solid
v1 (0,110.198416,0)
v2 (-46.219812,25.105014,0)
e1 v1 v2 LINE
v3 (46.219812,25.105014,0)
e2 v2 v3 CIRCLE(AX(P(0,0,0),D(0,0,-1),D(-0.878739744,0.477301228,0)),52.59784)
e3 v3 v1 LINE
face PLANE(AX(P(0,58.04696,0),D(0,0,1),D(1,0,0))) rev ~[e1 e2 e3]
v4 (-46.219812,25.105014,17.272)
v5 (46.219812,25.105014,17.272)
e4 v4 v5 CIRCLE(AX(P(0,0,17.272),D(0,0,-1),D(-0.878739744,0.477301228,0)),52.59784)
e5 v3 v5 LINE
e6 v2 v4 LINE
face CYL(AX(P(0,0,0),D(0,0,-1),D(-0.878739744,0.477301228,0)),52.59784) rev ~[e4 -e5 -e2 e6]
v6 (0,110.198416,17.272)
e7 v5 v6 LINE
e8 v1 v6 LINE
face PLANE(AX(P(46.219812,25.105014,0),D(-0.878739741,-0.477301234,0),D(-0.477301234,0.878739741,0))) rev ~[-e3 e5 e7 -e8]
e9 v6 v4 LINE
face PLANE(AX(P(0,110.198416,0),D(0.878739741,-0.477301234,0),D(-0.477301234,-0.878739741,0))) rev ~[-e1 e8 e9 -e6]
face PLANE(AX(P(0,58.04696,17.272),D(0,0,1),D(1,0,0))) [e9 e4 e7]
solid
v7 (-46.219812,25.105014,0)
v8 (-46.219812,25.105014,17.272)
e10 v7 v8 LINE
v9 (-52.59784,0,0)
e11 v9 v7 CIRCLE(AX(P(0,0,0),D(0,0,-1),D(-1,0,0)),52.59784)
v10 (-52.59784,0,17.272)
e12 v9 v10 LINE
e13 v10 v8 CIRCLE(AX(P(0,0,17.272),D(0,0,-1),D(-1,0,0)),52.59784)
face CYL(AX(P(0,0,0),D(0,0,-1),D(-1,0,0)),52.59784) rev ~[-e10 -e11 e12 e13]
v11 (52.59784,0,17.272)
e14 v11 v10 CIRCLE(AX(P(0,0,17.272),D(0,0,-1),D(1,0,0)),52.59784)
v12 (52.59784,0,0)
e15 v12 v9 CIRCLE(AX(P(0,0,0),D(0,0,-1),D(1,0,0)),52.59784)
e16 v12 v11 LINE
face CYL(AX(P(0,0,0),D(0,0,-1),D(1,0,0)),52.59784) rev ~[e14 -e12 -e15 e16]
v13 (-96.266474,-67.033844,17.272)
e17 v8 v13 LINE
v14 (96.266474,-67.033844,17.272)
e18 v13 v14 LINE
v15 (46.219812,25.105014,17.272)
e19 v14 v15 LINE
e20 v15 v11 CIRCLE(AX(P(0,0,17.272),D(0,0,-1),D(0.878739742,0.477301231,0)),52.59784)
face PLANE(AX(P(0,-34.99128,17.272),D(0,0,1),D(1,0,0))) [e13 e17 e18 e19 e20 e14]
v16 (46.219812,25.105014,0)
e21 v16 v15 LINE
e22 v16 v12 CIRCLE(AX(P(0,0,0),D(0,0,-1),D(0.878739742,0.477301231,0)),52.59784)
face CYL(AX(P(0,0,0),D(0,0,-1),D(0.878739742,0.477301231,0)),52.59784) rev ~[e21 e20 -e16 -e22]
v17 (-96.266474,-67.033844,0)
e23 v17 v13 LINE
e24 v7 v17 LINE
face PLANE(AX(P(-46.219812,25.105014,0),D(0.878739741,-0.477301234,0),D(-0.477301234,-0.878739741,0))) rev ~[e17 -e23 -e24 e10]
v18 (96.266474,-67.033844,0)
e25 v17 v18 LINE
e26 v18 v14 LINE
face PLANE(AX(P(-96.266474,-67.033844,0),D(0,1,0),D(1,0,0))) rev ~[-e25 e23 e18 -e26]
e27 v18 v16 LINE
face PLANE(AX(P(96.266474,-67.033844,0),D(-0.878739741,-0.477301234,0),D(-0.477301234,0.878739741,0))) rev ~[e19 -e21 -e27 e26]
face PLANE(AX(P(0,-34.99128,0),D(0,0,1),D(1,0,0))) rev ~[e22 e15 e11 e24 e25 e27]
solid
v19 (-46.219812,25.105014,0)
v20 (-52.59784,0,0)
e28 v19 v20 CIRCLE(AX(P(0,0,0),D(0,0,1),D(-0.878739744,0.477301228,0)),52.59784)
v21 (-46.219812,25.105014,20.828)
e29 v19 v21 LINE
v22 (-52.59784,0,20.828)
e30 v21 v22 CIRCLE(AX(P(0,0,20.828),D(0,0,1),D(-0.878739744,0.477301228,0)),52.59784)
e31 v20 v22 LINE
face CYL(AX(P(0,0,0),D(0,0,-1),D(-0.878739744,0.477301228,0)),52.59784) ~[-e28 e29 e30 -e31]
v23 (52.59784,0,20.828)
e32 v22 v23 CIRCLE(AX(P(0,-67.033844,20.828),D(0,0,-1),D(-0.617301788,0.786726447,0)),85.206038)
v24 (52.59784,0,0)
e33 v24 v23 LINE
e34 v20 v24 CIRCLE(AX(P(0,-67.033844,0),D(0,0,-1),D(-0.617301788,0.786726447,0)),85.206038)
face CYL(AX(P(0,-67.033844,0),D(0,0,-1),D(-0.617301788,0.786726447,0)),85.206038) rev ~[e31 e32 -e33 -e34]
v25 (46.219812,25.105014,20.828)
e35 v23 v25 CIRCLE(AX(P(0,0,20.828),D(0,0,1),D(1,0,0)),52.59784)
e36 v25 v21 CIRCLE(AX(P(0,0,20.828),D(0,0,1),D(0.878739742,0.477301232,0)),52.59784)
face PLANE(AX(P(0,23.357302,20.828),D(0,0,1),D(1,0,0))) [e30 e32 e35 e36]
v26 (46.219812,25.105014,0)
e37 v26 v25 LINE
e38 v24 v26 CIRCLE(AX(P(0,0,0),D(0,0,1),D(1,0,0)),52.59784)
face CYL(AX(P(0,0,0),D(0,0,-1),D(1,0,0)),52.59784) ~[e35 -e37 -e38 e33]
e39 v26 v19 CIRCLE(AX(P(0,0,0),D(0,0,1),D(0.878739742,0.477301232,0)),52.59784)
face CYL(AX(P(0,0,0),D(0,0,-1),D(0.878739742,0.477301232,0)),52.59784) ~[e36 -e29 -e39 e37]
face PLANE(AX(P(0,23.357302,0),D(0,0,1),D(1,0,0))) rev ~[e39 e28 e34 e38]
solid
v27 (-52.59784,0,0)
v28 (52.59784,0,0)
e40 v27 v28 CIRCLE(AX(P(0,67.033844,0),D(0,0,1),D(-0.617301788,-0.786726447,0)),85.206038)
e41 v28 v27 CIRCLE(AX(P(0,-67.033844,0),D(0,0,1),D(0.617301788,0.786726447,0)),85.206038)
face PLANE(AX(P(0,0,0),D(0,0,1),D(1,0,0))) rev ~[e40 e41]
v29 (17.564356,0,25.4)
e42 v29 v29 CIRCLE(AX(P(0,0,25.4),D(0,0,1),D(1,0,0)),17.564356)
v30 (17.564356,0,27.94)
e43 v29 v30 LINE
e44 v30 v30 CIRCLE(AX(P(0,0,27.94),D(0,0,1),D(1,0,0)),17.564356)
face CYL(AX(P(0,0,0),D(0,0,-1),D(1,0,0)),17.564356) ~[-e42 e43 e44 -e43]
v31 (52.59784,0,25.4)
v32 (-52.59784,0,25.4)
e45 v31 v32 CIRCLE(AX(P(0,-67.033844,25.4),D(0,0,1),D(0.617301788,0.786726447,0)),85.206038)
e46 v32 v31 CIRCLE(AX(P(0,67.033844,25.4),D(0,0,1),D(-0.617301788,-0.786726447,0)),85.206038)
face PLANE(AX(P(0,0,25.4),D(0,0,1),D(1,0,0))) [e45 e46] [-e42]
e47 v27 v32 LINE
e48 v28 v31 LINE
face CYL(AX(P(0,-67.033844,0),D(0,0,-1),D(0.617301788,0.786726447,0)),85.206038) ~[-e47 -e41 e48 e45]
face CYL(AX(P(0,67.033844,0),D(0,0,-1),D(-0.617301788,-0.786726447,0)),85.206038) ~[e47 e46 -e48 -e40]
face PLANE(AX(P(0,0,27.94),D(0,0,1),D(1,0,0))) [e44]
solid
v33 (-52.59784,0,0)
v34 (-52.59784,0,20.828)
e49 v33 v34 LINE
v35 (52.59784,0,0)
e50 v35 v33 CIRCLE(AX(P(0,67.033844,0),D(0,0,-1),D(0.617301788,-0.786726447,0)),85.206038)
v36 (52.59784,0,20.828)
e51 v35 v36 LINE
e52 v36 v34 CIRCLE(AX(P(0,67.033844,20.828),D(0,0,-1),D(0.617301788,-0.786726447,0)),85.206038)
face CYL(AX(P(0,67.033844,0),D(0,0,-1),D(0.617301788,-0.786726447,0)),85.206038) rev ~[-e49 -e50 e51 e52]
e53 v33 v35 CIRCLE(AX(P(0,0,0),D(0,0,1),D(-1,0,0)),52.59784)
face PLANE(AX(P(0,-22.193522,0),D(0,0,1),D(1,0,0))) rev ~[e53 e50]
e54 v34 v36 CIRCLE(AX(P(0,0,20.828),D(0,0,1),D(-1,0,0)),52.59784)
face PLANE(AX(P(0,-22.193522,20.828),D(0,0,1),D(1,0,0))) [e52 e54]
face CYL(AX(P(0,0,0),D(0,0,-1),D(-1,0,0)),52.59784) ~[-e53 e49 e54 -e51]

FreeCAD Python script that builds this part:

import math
import FreeCAD as App
import Part
import Sketcher
from FreeCAD import Vector
Q = App.Units.Quantity

doc = App.newDocument("Part")
body = doc.addObject("PartDesign::Body", "Body")

sketch1 = doc.addObject("Sketcher::SketchObject", "Sketch")
body.addObject(sketch1)
sketch1.AttachmentSupport = (doc.XY_Plane, [""])
sketch1.MapMode = "FlatFace"
sketch1.addGeometry([
    Part.ArcOfCircle(Part.Circle(Vector(0, 0, 0), Vector(0, 0, 1), 52.59784), math.radians(180), math.radians(360)),
    Part.ArcOfCircle(Part.Circle(Vector(0, 0, 0), Vector(0, 0, 1), 52.59784), math.radians(151.490711), math.radians(180)),
    Part.LineSegment(Vector(-46.219812, 25.105014, 0), Vector(-96.266474, -67.033844, 0)),
    Part.LineSegment(Vector(-96.266474, -67.033844, 0), Vector(96.266474, -67.033844, 0)),
    Part.LineSegment(Vector(96.266474, -67.033844, 0), Vector(46.219812, 25.105014, 0)),
    Part.ArcOfCircle(Part.Circle(Vector(0, 0, 0), Vector(0, 0, 1), 52.59784), math.radians(0), math.radians(28.509289)),
], False)
sketch1.addConstraint([
    Sketcher.Constraint("Tangent", 0, 1, 1, 2),
    Sketcher.Constraint("Tangent", 1, 1, 2, 1),
    Sketcher.Constraint("Coincident", 2, 2, 3, 1),
    Sketcher.Constraint("Coincident", 3, 2, 4, 1),
    Sketcher.Constraint("Tangent", 4, 2, 5, 2),
    Sketcher.Constraint("Tangent", 5, 1, 0, 2),
    Sketcher.Constraint("Horizontal", 3),
    Sketcher.Constraint("Coincident", 0, 3, -1, 1),
    Sketcher.Constraint("Equal", 0, 1),
    Sketcher.Constraint("Equal", 1, 5),
    Sketcher.Constraint("PointOnObject", 0, 1, -1),
    Sketcher.Constraint("PointOnObject", 5, 1, -1),
    Sketcher.Constraint("Horizontal", 1, 1, 4, 2),
    Sketcher.Constraint("Radius", 0, Q("52.59784 mm")),
    Sketcher.Constraint("Distance", 2, Q("104.853409 mm")),
    Sketcher.Constraint("DistanceX", 3, 1, 3, 2, Q("192.532948 mm")),
])
pad1 = doc.addObject("PartDesign::Pad", "Pad")
body.addObject(pad1)
pad1.Profile = sketch1
pad1.Length = Q("0.68 in")
body2 = doc.addObject("PartDesign::Body", "Body001")

sketch2 = doc.addObject("Sketcher::SketchObject", "Sketch001")
body2.addObject(sketch2)
sketch2.AttachmentSupport = (doc.getObject("XY_Plane001"), [""])
sketch2.MapMode = "FlatFace"
sketch2.addGeometry([
    Part.LineSegment(Vector(0, 110.198416, 0), Vector(-46.219812, 25.105014, 0)),
    Part.ArcOfCircle(Part.Circle(Vector(0, 0, 0), Vector(0, 0, 1), 52.59784), math.radians(28.509289), math.radians(151.490711)),
    Part.LineSegment(Vector(46.219812, 25.105014, 0), Vector(0, 110.198416, 0)),
], False)
sketch2.addConstraint([
    Sketcher.Constraint("Tangent", 0, 2, 1, 2),
    Sketcher.Constraint("Tangent", 1, 1, 2, 1),
    Sketcher.Constraint("Coincident", 2, 2, 0, 1),
    Sketcher.Constraint("Coincident", 1, 3, -1, 1),
    Sketcher.Constraint("PointOnObject", 2, 2, -2),
    Sketcher.Constraint("Radius", 1, Q("52.59784 mm")),
    Sketcher.Constraint("Distance", 0, Q("96.835728 mm")),
])
pad2 = doc.addObject("PartDesign::Pad", "Pad001")
body2.addObject(pad2)
pad2.Profile = sketch2
pad2.Length = Q("0.68 in")
body3 = doc.addObject("PartDesign::Body", "Body002")

sketch3 = doc.addObject("Sketcher::SketchObject", "Sketch002")
body3.addObject(sketch3)
sketch3.AttachmentSupport = (doc.getObject("XY_Plane002"), [""])
sketch3.MapMode = "FlatFace"
sketch3.addGeometry([
    Part.ArcOfCircle(Part.Circle(Vector(0, 0, 0), Vector(0, 0, 1), 52.59784), math.radians(151.490711), math.radians(180)),
    Part.ArcOfCircle(Part.Circle(Vector(0, -67.033844, 0), Vector(0, 0, 1), 85.206038), math.radians(51.880637), math.radians(128.119363)),
    Part.ArcOfCircle(Part.Circle(Vector(0, 0, 0), Vector(0, 0, 1), 52.59784), math.radians(0), math.radians(28.509289)),
    Part.ArcOfCircle(Part.Circle(Vector(0, 0, 0), Vector(0, 0, 1), 52.59784), math.radians(28.509289), math.radians(151.490711)),
], False)
sketch3.addConstraint([
    Sketcher.Constraint("Coincident", 0, 2, 1, 2),
    Sketcher.Constraint("Coincident", 1, 1, 2, 1),
    Sketcher.Constraint("Tangent", 2, 2, 3, 1),
    Sketcher.Constraint("Tangent", 3, 2, 0, 1),
    Sketcher.Constraint("Coincident", 0, 3, -1, 1),
    Sketcher.Constraint("Coincident", 2, 3, -1, 1),
    Sketcher.Constraint("PointOnObject", 1, 3, -2),
    Sketcher.Constraint("PointOnObject", 0, 2, -1),
    Sketcher.Constraint("Horizontal", 2, 2, 3, 2),
    Sketcher.Constraint("Radius", 0, Q("52.59784 mm")),
    Sketcher.Constraint("Radius", 1, Q("85.206038 mm")),
    Sketcher.Constraint("DistanceX", -1, 1, 2, 2, Q("46.219812 mm")),
])
pad3 = doc.addObject("PartDesign::Pad", "Pad002")
body3.addObject(pad3)
pad3.Profile = sketch3
pad3.Length = Q("0.82 in")
body4 = doc.addObject("PartDesign::Body", "Body003")

sketch4 = doc.addObject("Sketcher::SketchObject", "Sketch003")
body4.addObject(sketch4)
sketch4.AttachmentSupport = (doc.getObject("XY_Plane003"), [""])
sketch4.MapMode = "FlatFace"
sketch4.addGeometry([
    Part.ArcOfCircle(Part.Circle(Vector(0, 67.033844, 0), Vector(0, 0, 1), 85.206038), math.radians(-128.119363), math.radians(-51.880637)),
    Part.ArcOfCircle(Part.Circle(Vector(0, 0, 0), Vector(0, 0, 1), 52.59784), math.radians(180), math.radians(360)),
], False)
sketch4.addConstraint([
    Sketcher.Constraint("Coincident", 0, 1, 1, 1),
    Sketcher.Constraint("Coincident", 1, 2, 0, 2),
    Sketcher.Constraint("Coincident", 1, 3, -1, 1),
    Sketcher.Constraint("PointOnObject", 0, 3, -2),
    Sketcher.Constraint("PointOnObject", 0, 1, -1),
    Sketcher.Constraint("Radius", 0, Q("85.206038 mm")),
    Sketcher.Constraint("Radius", 1, Q("52.59784 mm")),
])
pad4 = doc.addObject("PartDesign::Pad", "Pad003")
body4.addObject(pad4)
pad4.Profile = sketch4
pad4.Length = Q("0.82 in")
body5 = doc.addObject("PartDesign::Body", "Body004")

sketch5 = doc.addObject("Sketcher::SketchObject", "Sketch004")
body5.addObject(sketch5)
sketch5.AttachmentSupport = (doc.getObject("XY_Plane004"), [""])
sketch5.MapMode = "FlatFace"
sketch5.addGeometry([
    Part.ArcOfCircle(Part.Circle(Vector(0, -67.033844, 0), Vector(0, 0, 1), 85.206038), math.radians(51.880637), math.radians(128.119363)),
    Part.ArcOfCircle(Part.Circle(Vector(0, 67.033844, 0), Vector(0, 0, 1), 85.206038), math.radians(-128.119363), math.radians(-51.880637)),
    Part.Circle(Vector(0, 0, 0), Vector(0, 0, 1), 17.564356),
], False)
sketch5.addConstraint([
    Sketcher.Constraint("Coincident", 0, 1, 1, 2),
    Sketcher.Constraint("Coincident", 1, 1, 0, 2),
    Sketcher.Constraint("Coincident", 2, 3, -1, 1),
    Sketcher.Constraint("Equal", 0, 1),
    Sketcher.Constraint("Symmetric", 0, 3, 1, 3, -1, 1),
    Sketcher.Constraint("PointOnObject", 0, 3, -2),
    Sketcher.Constraint("Diameter", 2, Q("35.128711 mm")),
    Sketcher.Constraint("Radius", 0, Q("85.206038 mm")),
    Sketcher.Constraint("DistanceX", -1, 1, 0, 1, Q("52.59784 mm")),
])
pad5 = doc.addObject("PartDesign::Pad", "Pad004")
body5.addObject(pad5)
pad5.Profile = sketch5
pad5.Length = Q("1 in")

sketch6 = doc.addObject("Sketcher::SketchObject", "Sketch005")
body5.addObject(sketch6)
sketch6.AttachmentSupport = (doc.getObject("XY_Plane004"), [""])
sketch6.MapMode = "FlatFace"
sketch6.addGeometry(Part.Circle(Vector(0, 0, 0), Vector(0, 0, 1), 17.564356), False)
sketch6.addConstraint([
    Sketcher.Constraint("Coincident", 0, 3, -1, 1),
    Sketcher.Constraint("Diameter", 0, Q("35.128711 mm")),
])
pad6 = doc.addObject("PartDesign::Pad", "Pad005")
body5.addObject(pad6)
pad6.Profile = sketch6
pad6.Length = Q("1.1 in")

doc.recompute()
